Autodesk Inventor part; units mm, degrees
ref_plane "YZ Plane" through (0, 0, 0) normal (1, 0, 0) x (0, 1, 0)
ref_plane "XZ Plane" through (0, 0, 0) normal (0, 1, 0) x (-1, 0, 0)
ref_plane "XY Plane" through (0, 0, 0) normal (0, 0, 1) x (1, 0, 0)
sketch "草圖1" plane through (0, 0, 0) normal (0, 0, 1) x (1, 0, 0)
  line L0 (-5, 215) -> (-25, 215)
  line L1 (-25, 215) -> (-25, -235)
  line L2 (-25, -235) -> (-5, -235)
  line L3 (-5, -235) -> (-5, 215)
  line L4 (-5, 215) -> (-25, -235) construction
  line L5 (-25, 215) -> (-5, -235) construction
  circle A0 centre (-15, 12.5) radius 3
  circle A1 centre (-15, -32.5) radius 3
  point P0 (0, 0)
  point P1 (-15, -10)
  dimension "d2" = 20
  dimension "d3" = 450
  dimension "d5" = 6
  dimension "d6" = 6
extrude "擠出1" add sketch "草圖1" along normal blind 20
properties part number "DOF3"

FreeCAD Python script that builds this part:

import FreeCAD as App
import Part
import Sketcher


def add_polygon(sketch, points):
    """Adds a closed chain of lines whose ends are joined by coincident constraints."""
    first, n = sketch.GeometryCount, len(points)
    for a, b in zip(points, points[1:] + points[:1]):
        sketch.addGeometry(Part.LineSegment(App.Vector(*a, 0), App.Vector(*b, 0)), False)
    for i in range(n):
        sketch.addConstraint(Sketcher.Constraint("Coincident", first + i, 2, first + (i + 1) % n, 1))

doc = App.newDocument("Part")
body = doc.addObject("PartDesign::Body", "Body")

# Sketch on XY plane
sketch1 = doc.addObject("Sketcher::SketchObject", "Sketch")
body.addObject(sketch1)
sketch1.AttachmentSupport = (doc.XY_Plane, [""])
sketch1.MapMode = "FlatFace"
add_polygon(sketch1, [(-5, -235), (-5, 215), (-25, 215), (-25, -235)])  # lines 0-3
sketch1.addGeometry(Part.Circle(App.Vector(-15, -32.5, 0), App.Vector(0, 0, 1), 3), False)  # 4
sketch1.addGeometry(Part.Circle(App.Vector(-15, 12.5, 0), App.Vector(0, 0, 1), 3), False)  # 5
sketch1.addConstraint([
    Sketcher.Constraint("Vertical", 0),
    Sketcher.Constraint("Horizontal", 1),
    Sketcher.Constraint("Vertical", 2),
    Sketcher.Constraint("Horizontal", 3),
    Sketcher.Constraint("Equal", 4, 5),
    Sketcher.Constraint("Vertical", 4, 3, 5, 3),
    Sketcher.Constraint("Diameter", 4, 6.0),
    Sketcher.Constraint("DistanceX", 1, 2, 1, 1, 20.0),
    Sketcher.Constraint("DistanceY", 0, 1, 0, 2, 450.0),
    Sketcher.Constraint("DistanceX", 4, 3, -1, 1, 15.0),
    Sketcher.Constraint("DistanceX", 0, 2, -1, 1, 5.0),
    Sketcher.Constraint("DistanceY", -1, 1, 0, 2, 215.0),
    Sketcher.Constraint("DistanceY", 4, 3, 5, 3, 45.0),
    Sketcher.Constraint("DistanceY", 4, 3, -1, 1, 32.5),
])
pad1 = doc.addObject("PartDesign::Pad", "Pad")
body.addObject(pad1)
pad1.Profile = sketch1
pad1.Length = 20

doc.recompute()
